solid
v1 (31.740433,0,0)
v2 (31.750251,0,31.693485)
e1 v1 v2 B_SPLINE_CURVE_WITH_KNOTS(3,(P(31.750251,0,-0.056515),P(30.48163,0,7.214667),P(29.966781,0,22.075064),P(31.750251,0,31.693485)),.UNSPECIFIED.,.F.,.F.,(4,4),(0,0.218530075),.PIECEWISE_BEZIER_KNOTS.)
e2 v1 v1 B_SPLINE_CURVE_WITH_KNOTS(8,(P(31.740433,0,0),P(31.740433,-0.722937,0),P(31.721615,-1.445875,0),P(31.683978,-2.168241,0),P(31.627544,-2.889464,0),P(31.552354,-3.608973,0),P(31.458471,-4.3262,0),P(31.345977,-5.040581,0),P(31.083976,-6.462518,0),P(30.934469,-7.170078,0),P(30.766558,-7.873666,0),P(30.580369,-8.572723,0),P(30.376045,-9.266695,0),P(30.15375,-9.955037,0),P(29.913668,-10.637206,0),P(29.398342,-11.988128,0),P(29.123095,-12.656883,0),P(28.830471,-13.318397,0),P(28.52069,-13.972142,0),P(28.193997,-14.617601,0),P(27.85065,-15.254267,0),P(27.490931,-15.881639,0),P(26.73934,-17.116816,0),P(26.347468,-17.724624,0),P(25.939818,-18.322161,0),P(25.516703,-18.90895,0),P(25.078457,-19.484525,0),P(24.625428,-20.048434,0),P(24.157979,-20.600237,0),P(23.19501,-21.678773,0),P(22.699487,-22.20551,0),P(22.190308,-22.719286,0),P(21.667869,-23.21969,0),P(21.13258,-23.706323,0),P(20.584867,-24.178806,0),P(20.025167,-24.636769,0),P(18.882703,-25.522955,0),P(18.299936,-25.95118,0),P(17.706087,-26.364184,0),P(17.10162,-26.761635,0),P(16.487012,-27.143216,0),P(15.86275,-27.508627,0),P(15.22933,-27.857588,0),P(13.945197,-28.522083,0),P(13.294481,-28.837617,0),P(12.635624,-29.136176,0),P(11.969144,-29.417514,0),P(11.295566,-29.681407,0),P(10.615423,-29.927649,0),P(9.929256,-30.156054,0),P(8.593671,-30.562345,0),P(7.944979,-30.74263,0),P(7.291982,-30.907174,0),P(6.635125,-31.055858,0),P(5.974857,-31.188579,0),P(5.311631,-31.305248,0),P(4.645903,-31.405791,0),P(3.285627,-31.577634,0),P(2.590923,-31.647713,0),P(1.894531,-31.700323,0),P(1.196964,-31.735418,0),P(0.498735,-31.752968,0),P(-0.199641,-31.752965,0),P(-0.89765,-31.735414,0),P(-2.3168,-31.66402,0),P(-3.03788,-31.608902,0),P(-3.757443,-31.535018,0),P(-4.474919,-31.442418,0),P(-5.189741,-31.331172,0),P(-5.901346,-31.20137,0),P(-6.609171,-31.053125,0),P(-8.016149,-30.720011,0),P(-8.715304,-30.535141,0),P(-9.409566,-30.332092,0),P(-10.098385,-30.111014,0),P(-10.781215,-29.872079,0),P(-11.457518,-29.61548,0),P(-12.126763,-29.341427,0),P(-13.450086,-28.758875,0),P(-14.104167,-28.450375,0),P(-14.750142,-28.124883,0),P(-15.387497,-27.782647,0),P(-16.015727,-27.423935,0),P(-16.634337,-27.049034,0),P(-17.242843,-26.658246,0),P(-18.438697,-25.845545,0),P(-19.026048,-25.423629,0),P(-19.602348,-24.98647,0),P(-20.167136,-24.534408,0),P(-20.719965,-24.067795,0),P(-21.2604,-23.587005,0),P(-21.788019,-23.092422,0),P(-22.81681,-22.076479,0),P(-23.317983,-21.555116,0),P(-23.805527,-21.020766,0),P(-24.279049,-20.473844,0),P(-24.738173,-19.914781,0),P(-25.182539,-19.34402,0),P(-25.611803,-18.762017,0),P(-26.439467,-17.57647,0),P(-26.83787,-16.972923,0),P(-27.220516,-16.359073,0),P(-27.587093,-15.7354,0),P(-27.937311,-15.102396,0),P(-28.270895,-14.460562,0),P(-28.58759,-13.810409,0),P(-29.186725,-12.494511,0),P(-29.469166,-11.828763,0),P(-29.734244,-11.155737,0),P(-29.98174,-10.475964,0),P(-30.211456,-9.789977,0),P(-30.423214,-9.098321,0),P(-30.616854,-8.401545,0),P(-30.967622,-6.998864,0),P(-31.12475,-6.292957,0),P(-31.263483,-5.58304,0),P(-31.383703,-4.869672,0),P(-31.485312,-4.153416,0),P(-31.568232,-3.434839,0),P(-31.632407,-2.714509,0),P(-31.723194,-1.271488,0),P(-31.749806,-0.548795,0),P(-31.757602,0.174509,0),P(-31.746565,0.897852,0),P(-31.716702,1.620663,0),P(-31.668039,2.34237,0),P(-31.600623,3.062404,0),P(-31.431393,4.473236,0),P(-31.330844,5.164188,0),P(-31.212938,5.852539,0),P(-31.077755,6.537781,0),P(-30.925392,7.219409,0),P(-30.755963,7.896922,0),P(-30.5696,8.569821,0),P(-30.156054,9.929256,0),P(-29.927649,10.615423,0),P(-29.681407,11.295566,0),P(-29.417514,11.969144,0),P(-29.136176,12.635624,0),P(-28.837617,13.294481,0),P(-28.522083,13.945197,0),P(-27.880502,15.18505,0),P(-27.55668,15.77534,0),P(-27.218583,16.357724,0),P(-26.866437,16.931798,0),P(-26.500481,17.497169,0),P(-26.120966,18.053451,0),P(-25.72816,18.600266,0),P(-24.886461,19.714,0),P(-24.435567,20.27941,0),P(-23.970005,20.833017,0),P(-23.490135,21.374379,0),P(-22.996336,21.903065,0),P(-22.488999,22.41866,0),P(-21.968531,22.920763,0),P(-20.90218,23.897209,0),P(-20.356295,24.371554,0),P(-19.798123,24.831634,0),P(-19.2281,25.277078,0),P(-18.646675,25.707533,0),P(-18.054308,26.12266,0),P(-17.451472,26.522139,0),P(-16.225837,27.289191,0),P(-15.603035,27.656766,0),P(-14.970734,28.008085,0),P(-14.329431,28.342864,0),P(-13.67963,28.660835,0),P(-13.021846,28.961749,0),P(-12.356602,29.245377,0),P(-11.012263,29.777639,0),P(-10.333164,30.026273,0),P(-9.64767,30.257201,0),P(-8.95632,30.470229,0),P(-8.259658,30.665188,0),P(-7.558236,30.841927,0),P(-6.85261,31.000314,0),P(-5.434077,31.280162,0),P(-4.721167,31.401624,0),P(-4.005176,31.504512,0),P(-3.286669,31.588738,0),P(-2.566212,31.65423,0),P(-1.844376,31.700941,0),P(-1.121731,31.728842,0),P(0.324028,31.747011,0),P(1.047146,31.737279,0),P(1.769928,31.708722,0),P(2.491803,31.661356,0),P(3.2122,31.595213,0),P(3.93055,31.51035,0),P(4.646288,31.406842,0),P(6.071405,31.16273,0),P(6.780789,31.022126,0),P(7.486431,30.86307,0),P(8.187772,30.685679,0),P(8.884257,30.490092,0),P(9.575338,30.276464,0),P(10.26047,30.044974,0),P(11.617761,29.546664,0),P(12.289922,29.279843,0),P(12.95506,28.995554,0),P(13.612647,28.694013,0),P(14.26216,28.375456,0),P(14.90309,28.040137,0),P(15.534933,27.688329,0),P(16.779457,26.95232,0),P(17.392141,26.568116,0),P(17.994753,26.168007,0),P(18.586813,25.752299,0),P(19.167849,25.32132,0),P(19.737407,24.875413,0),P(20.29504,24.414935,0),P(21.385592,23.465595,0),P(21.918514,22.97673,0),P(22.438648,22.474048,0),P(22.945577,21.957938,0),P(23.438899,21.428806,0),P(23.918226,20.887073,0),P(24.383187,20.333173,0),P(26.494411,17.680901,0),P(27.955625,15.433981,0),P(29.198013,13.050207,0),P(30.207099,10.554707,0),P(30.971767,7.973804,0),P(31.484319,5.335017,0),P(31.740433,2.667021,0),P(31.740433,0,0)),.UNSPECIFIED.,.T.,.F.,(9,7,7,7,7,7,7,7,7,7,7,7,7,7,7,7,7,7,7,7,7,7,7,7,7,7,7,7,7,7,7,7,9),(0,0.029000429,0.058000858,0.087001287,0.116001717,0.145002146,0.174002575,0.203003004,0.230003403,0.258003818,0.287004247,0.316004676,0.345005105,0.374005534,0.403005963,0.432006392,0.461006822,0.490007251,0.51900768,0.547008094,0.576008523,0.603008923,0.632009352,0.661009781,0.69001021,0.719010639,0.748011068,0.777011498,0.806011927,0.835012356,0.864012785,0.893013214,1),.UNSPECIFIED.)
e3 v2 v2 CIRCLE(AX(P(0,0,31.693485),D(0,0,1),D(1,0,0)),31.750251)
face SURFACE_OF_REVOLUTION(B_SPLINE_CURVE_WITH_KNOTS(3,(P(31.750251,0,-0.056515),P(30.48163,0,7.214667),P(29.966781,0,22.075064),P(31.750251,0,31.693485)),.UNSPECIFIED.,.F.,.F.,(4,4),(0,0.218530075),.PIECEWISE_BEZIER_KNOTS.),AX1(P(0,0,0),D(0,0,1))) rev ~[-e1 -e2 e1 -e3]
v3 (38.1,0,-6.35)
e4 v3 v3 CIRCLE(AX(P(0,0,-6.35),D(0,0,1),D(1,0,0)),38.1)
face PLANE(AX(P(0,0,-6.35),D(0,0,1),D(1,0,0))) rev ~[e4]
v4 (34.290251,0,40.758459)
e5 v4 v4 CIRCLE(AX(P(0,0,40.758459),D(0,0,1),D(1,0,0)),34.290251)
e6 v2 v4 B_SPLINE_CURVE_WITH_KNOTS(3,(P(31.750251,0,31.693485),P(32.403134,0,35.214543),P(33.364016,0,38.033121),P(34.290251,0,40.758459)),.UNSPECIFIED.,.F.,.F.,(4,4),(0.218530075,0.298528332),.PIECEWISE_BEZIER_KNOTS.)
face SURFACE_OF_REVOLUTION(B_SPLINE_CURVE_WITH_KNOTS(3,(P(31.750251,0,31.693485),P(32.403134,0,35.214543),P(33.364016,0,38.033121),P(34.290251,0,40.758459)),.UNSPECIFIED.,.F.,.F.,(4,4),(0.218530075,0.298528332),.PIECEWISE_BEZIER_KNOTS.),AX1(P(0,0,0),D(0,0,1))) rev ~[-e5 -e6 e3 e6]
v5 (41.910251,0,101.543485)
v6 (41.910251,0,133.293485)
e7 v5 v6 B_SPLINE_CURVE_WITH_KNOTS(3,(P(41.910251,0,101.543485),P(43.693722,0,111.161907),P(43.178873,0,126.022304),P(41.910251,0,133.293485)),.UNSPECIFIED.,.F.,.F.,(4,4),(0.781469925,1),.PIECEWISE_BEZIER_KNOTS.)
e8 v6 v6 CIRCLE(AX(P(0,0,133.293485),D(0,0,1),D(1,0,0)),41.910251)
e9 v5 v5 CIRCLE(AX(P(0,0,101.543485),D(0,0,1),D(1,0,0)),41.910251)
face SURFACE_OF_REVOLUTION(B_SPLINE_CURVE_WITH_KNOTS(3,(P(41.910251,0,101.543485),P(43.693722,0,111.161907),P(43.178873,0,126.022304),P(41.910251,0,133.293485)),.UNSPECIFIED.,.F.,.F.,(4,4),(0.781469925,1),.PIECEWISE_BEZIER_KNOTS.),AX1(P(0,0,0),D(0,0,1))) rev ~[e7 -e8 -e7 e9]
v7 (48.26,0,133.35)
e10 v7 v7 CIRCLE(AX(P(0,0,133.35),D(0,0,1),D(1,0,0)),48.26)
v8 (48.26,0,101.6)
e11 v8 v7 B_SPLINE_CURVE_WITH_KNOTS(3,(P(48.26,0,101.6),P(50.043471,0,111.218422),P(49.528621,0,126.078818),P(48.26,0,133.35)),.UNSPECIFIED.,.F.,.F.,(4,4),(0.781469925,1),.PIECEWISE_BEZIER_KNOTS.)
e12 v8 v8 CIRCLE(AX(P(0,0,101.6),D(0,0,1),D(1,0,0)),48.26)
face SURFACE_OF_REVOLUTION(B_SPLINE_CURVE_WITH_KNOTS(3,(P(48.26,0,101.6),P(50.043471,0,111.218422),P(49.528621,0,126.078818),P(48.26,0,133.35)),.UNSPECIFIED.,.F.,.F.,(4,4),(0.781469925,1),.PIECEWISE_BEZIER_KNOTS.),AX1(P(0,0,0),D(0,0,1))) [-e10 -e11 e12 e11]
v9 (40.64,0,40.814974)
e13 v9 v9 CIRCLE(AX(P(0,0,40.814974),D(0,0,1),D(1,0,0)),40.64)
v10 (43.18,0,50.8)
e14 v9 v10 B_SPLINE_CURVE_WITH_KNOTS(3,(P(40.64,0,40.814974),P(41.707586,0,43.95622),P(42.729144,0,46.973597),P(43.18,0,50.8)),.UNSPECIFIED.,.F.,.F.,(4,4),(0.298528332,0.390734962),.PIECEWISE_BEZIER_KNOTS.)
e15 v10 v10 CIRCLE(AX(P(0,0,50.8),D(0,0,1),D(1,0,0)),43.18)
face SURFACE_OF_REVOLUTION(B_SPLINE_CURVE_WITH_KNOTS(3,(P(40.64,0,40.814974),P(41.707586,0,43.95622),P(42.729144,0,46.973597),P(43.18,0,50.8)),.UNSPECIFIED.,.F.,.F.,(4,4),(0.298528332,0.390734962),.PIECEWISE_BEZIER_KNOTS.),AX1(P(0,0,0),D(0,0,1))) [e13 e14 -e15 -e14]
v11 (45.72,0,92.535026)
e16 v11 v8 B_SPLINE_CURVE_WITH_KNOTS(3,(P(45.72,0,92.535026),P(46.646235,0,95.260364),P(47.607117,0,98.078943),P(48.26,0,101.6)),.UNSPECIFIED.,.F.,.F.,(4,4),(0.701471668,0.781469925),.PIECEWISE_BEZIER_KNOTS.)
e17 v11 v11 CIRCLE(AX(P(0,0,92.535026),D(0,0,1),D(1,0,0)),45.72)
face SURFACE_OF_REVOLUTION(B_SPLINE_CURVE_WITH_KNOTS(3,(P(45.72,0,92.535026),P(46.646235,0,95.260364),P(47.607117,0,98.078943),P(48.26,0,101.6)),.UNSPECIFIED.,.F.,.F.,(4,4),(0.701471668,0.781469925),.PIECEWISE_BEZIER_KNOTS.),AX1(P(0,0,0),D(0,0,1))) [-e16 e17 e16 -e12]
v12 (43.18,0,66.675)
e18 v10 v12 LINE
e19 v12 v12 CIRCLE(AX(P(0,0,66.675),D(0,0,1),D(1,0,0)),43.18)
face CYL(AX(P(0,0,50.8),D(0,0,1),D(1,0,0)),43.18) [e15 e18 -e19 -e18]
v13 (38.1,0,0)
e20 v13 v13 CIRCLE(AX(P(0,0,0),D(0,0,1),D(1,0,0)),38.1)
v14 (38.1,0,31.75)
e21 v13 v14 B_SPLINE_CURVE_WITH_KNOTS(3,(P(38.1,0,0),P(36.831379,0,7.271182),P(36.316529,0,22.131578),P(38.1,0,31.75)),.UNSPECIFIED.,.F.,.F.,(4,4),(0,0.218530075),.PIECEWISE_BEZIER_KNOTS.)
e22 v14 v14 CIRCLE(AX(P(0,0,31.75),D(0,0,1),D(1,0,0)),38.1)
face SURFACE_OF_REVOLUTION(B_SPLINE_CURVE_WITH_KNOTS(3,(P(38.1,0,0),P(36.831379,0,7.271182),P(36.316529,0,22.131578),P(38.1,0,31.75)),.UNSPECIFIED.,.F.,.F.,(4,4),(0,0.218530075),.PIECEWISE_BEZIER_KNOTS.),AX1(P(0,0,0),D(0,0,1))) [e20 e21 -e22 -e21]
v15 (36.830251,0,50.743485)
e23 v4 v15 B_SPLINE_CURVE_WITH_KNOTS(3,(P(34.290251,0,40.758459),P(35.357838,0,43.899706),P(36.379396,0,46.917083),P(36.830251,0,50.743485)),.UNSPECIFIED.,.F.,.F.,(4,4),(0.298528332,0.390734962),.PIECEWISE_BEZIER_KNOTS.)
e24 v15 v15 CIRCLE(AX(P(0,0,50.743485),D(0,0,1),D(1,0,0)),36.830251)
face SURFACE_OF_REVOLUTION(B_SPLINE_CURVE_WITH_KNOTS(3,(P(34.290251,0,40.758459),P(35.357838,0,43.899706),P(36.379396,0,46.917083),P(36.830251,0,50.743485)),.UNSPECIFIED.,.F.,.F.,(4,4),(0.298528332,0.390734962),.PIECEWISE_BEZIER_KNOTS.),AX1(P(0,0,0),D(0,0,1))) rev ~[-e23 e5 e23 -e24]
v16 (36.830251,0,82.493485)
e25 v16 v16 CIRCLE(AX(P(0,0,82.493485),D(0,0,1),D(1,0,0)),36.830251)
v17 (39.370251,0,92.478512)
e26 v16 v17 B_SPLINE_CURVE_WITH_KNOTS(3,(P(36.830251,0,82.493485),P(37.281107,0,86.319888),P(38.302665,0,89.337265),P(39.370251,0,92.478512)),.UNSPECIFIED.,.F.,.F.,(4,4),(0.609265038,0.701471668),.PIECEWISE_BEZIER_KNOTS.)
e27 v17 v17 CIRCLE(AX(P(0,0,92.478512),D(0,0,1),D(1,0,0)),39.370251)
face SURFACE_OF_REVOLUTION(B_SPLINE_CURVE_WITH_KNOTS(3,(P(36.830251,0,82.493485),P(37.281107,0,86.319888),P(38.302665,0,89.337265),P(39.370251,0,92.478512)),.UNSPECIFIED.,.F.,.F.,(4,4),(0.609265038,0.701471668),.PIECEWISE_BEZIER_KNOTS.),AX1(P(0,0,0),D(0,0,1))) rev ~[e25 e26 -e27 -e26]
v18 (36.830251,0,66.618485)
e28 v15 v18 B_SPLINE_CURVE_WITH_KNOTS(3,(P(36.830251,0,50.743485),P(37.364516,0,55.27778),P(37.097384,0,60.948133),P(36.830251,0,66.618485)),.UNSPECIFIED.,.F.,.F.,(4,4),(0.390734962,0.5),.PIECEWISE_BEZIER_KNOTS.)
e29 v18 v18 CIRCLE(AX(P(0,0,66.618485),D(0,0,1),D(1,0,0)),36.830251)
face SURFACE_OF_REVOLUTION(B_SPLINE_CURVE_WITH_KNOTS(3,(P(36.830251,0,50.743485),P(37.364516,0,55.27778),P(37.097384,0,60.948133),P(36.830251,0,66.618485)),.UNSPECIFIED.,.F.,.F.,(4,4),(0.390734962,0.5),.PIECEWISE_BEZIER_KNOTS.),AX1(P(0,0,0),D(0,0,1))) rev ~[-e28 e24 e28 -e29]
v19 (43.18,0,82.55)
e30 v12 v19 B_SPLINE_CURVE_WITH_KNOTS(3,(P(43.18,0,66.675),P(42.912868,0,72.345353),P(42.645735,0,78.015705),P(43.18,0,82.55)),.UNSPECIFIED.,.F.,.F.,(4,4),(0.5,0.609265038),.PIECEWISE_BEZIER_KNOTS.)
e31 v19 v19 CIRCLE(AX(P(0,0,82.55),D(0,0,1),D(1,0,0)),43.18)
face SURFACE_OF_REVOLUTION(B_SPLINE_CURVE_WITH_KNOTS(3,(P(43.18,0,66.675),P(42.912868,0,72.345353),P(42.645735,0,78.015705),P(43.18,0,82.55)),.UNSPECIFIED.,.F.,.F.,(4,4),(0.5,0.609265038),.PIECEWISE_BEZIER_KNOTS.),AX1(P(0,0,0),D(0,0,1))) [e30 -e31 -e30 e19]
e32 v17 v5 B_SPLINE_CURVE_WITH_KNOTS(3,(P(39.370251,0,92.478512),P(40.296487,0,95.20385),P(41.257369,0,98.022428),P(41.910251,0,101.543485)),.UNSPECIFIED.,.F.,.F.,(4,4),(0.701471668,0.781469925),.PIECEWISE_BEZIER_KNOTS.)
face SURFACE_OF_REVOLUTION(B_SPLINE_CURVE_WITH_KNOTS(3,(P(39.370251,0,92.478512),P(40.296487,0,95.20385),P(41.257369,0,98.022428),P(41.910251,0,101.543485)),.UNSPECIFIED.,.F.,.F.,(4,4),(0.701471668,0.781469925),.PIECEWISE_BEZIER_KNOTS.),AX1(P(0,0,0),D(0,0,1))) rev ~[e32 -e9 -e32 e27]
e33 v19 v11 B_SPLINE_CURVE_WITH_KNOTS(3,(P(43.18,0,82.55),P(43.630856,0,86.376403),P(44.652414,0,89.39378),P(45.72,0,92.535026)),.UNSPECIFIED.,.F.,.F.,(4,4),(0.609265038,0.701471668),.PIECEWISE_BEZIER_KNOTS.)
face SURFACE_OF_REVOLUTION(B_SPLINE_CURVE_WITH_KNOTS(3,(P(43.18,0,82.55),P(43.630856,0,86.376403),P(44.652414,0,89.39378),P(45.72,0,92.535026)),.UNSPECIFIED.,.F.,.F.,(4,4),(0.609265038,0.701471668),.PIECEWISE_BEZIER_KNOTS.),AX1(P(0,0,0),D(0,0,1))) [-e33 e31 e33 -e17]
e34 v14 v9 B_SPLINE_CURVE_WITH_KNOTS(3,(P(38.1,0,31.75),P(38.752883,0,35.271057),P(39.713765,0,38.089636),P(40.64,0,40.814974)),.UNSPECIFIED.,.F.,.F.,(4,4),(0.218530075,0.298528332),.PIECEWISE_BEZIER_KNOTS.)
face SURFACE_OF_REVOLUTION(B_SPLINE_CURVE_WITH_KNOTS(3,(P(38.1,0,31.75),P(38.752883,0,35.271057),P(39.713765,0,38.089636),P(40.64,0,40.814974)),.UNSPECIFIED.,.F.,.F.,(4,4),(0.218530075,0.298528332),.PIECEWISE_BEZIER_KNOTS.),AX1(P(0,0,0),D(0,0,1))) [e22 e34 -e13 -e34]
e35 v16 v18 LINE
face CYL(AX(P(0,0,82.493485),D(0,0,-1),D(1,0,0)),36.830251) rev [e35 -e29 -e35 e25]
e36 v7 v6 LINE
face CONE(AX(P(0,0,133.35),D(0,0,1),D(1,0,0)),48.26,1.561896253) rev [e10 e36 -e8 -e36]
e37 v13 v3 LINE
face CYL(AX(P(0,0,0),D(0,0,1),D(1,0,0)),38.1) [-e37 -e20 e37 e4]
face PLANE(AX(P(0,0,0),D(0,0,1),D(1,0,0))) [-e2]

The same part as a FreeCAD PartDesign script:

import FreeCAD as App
import Part
import Sketcher

V = App.Vector
Q = App.Units.Quantity

doc = App.newDocument("Part")
body = doc.addObject("PartDesign::Body", "Body")

sketch1 = body.newObject("Sketcher::SketchObject", "Sketch")
sketch1.AttachmentSupport = (doc.getObject("XZ_Plane"), [""])
sketch1.MapMode = "FlatFace"
sketch1.addGeometry([
    Part.LineSegment(V(31.750251, -0.056515, 0), V(38.1, 0, 0)),
    Part.BSplineCurve([V(38.1, 0, 0), V(36.831379, 7.271182, 0), V(36.316529, 22.131578, 0), V(38.1, 31.75, 0)], [4, 4], [0, 0.218530075], False, 3, [1, 1, 1, 1], False),
    Part.BSplineCurve([V(38.1, 31.75, 0), V(38.752883, 35.271057, 0), V(39.713765, 38.089636, 0), V(40.64, 40.814974, 0)], [4, 4], [0.218530075, 0.298528332], False, 3, [1, 1, 1, 1], False),
    Part.BSplineCurve([V(40.64, 40.814974, 0), V(41.707586, 43.95622, 0), V(42.729144, 46.973597, 0), V(43.18, 50.8, 0)], [4, 4], [0.298528332, 0.390734962], False, 3, [1, 1, 1, 1], False),
    Part.LineSegment(V(43.18, 50.8, 0), V(43.18, 66.675, 0)),
    Part.BSplineCurve([V(43.18, 66.675, 0), V(42.912868, 72.345353, 0), V(42.645735, 78.015705, 0), V(43.18, 82.55, 0)], [4, 4], [0.5, 0.609265038], False, 3, [1, 1, 1, 1], False),
    Part.BSplineCurve([V(43.18, 82.55, 0), V(43.630856, 86.376403, 0), V(44.652414, 89.39378, 0), V(45.72, 92.535026, 0)], [4, 4], [0.609265038, 0.701471668], False, 3, [1, 1, 1, 1], False),
    Part.BSplineCurve([V(45.72, 92.535026, 0), V(46.646235, 95.260364, 0), V(47.607117, 98.078943, 0), V(48.26, 101.6, 0)], [4, 4], [0.701471668, 0.781469925], False, 3, [1, 1, 1, 1], False),
    Part.BSplineCurve([V(48.26, 101.6, 0), V(50.043471, 111.218422, 0), V(49.528621, 126.078818, 0), V(48.26, 133.35, 0)], [4, 4], [0.781469925, 1], False, 3, [1, 1, 1, 1], False),
    Part.LineSegment(V(48.26, 133.35, 0), V(41.910251, 133.293485, 0)),
    Part.BSplineCurve([V(41.910251, 101.543485, 0), V(43.693722, 111.161907, 0), V(43.178873, 126.022304, 0), V(41.910251, 133.293485, 0)], [4, 4], [0.781469925, 1], False, 3, [1, 1, 1, 1], False),
    Part.BSplineCurve([V(39.370251, 92.478512, 0), V(40.296487, 95.20385, 0), V(41.257369, 98.022428, 0), V(41.910251, 101.543485, 0)], [4, 4], [0.701471668, 0.781469925], False, 3, [1, 1, 1, 1], False),
    Part.BSplineCurve([V(36.830251, 82.493485, 0), V(37.281107, 86.319888, 0), V(38.302665, 89.337265, 0), V(39.370251, 92.478512, 0)], [4, 4], [0.609265038, 0.701471668], False, 3, [1, 1, 1, 1], False),
    Part.LineSegment(V(36.830251, 82.493485, 0), V(36.830251, 66.618485, 0)),
    Part.BSplineCurve([V(36.830251, 50.743485, 0), V(37.364516, 55.27778, 0), V(37.097384, 60.948133, 0), V(36.830251, 66.618485, 0)], [4, 4], [0.390734962, 0.5], False, 3, [1, 1, 1, 1], False),
    Part.BSplineCurve([V(34.290251, 40.758459, 0), V(35.357838, 43.899706, 0), V(36.379396, 46.917083, 0), V(36.830251, 50.743485, 0)], [4, 4], [0.298528332, 0.390734962], False, 3, [1, 1, 1, 1], False),
    Part.BSplineCurve([V(31.750251, 31.693485, 0), V(32.403134, 35.214543, 0), V(33.364016, 38.033121, 0), V(34.290251, 40.758459, 0)], [4, 4], [0.218530075, 0.298528332], False, 3, [1, 1, 1, 1], False),
    Part.BSplineCurve([V(31.750251, -0.056515, 0), V(30.48163, 7.214667, 0), V(29.966781, 22.075064, 0), V(31.750251, 31.693485, 0)], [4, 4], [0, 0.218530075], False, 3, [1, 1, 1, 1], False),
], False)
sketch1.addConstraint([
    Sketcher.Constraint("Block", 1),
    Sketcher.Constraint("Block", 2),
    Sketcher.Constraint("Block", 3),
    Sketcher.Constraint("Block", 5),
    Sketcher.Constraint("Block", 6),
    Sketcher.Constraint("Block", 7),
    Sketcher.Constraint("Block", 8),
    Sketcher.Constraint("Block", 10),
    Sketcher.Constraint("Block", 11),
    Sketcher.Constraint("Block", 12),
    Sketcher.Constraint("Block", 14),
    Sketcher.Constraint("Block", 15),
    Sketcher.Constraint("Block", 16),
    Sketcher.Constraint("Block", 17),
    Sketcher.Constraint("Coincident", 0, 2, 1, 1),
    Sketcher.Constraint("Coincident", 3, 2, 4, 1),
    Sketcher.Constraint("Coincident", 4, 2, 5, 1),
    Sketcher.Constraint("Coincident", 8, 2, 9, 1),
    Sketcher.Constraint("Coincident", 9, 2, 10, 2),
    Sketcher.Constraint("Coincident", 12, 1, 13, 1),
    Sketcher.Constraint("Coincident", 13, 2, 14, 2),
    Sketcher.Constraint("Coincident", 17, 1, 0, 1),
])
revolution = body.newObject("PartDesign::Revolution", "Revolution")
revolution.Profile = sketch1
revolution.ReferenceAxis = (sketch1, ["V_Axis"])
revolution.Angle = 360

sketch2 = body.newObject("Sketcher::SketchObject", "Sketch001")
sketch2.AttachmentSupport = (doc.getObject("XY_Plane"), [""])
sketch2.MapMode = "FlatFace"
sketch2.addGeometry(Part.Circle(V(0, 0, 0), V(0, 0, 1), 38), False)
sketch2.addConstraint([
    Sketcher.Constraint("Coincident", 0, 3, -1, 1),
    Sketcher.Constraint("Diameter", 0, Q("3 in")),
])
pad1 = body.newObject("PartDesign::Pad", "Pad")
pad1.Profile = sketch2
pad1.Length = Q("0.25 in")
pad1.Reversed = True

doc.recompute()
